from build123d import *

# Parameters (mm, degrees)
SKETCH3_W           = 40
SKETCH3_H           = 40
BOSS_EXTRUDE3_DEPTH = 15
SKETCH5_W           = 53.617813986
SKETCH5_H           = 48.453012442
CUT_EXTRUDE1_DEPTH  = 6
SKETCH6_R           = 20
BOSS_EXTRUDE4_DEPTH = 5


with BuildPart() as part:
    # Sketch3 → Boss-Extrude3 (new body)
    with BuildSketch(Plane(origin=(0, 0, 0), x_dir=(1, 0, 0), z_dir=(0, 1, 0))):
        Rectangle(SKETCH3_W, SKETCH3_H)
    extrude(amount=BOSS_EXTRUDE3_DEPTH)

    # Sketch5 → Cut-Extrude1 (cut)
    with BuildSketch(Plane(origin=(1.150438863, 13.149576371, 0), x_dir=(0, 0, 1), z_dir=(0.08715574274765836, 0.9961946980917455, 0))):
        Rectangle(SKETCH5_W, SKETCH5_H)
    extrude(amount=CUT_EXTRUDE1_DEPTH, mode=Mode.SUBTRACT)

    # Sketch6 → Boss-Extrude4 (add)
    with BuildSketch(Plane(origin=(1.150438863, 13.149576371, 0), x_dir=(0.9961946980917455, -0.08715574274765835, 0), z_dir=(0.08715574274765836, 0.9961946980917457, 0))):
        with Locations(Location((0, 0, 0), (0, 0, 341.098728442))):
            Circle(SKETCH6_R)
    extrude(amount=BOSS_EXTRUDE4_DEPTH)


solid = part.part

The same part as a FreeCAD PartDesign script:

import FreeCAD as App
import Part
import Sketcher

V = App.Vector
Q = App.Units.Quantity


def add_polygon(sketch, points):
    """Adds a closed chain of lines whose ends are joined by coincident constraints."""
    first, n = sketch.GeometryCount, len(points)
    for a, b in zip(points, points[1:] + points[:1]):
        sketch.addGeometry(Part.LineSegment(App.Vector(*a, 0), App.Vector(*b, 0)), False)
    for i in range(n):
        sketch.addConstraint(Sketcher.Constraint("Coincident", first + i, 2, first + (i + 1) % n, 1))

doc = App.newDocument("Part")
params = doc.addObject("Spreadsheet::Sheet", "Params")
for row, (alias, value) in enumerate([
    ("sketch1_width", "40 mm"),
    ("pad1_length", "15 mm"),
    ("pocket1_length", "6 mm"),
    ("sketch3_diameter", "40 mm"),
    ("pad2_length", "5 mm"),
], start=1):
    params.set(f"A{row}", alias)
    params.set(f"B{row}", "=" + value)
    params.setAlias(f"B{row}", alias)

body = doc.addObject("PartDesign::Body", "Body")

# Sketch on XZ plane
sketch1 = body.newObject("Sketcher::SketchObject", "Sketch")
sketch1.AttachmentSupport = (doc.getObject("XZ_Plane"), [""])
sketch1.MapMode = "FlatFace"
add_polygon(sketch1, [(-20, -20), (-20, 20), (20, 20), (20, -20)])  # lines 0-3
sketch1.addConstraint(Sketcher.Constraint("Vertical", 0))
sketch1.addConstraint(Sketcher.Constraint("Horizontal", 1))
sketch1.addConstraint(Sketcher.Constraint("Vertical", 2))
sketch1.addConstraint(Sketcher.Constraint("Horizontal", 3))
sketch1.addConstraint(Sketcher.Constraint("Symmetric", 0, 2, 2, 2, -1, 1))
sketch1.addConstraint(Sketcher.Constraint("Equal", 3, 0))
sketch1.addConstraint(Sketcher.Constraint("DistanceX", 1, 1, 1, 2, Q("40 mm")))
sketch1.setExpression("Constraints[10]", "Params.sketch1_width")
pad1 = body.newObject("PartDesign::Pad", "Pad")
pad1.Profile = sketch1
pad1.setExpression("Length", "Params.pad1_length")
pad1.Reversed = True

# Sketch on an angled plane
sketch2 = body.newObject("Sketcher::SketchObject", "Sketch001")
sketch2.Placement = App.Placement(V(1.150439, 13.149576, 0), App.Rotation(V(0, 0, 1), V(0.996194698, -0.087155743, 0), V(0.087155743, 0.996194698, 0), "ZXY"))
add_polygon(sketch2, [(-27, 24), (-27, -24), (27, -24), (27, 24)])  # lines 0-3
sketch2.addConstraint(Sketcher.Constraint("Vertical", 0))
sketch2.addConstraint(Sketcher.Constraint("Horizontal", 1))
sketch2.addConstraint(Sketcher.Constraint("Vertical", 2))
sketch2.addConstraint(Sketcher.Constraint("Horizontal", 3))
sketch2.addConstraint(Sketcher.Constraint("Symmetric", 0, 2, 2, 2, -1, 1))
sketch2.addConstraint(Sketcher.Constraint("DistanceX", 1, 1, 1, 2, Q("53.617814 mm")))
sketch2.addConstraint(Sketcher.Constraint("DistanceY", 0, 2, 0, 1, Q("48.453012 mm")))
pocket1 = body.newObject("PartDesign::Pocket", "Pocket")
pocket1.Profile = sketch2
pocket1.setExpression("Length", "Params.pocket1_length")
pocket1.Reversed = True

# Sketch on an angled plane
sketch3 = body.newObject("Sketcher::SketchObject", "Sketch002")
sketch3.Placement = App.Placement(V(1.150439, 13.149576, 0), App.Rotation(V(0.996194698, -0.087155743, 0), V(0, 0, -1), V(0.087155743, 0.996194698, 0), "ZXY"))
sketch3.addGeometry(Part.Circle(V(0, 0, 0), V(0, 0, 1), 20), False)
sketch3.addConstraint(Sketcher.Constraint("Coincident", 0, 3, -1, 1))
sketch3.addConstraint(Sketcher.Constraint("Diameter", 0, Q("40 mm")))
sketch3.setExpression("Constraints[1]", "Params.sketch3_diameter")
pad2 = body.newObject("PartDesign::Pad", "Pad001")
pad2.Profile = sketch3
pad2.setExpression("Length", "Params.pad2_length")

doc.recompute()
